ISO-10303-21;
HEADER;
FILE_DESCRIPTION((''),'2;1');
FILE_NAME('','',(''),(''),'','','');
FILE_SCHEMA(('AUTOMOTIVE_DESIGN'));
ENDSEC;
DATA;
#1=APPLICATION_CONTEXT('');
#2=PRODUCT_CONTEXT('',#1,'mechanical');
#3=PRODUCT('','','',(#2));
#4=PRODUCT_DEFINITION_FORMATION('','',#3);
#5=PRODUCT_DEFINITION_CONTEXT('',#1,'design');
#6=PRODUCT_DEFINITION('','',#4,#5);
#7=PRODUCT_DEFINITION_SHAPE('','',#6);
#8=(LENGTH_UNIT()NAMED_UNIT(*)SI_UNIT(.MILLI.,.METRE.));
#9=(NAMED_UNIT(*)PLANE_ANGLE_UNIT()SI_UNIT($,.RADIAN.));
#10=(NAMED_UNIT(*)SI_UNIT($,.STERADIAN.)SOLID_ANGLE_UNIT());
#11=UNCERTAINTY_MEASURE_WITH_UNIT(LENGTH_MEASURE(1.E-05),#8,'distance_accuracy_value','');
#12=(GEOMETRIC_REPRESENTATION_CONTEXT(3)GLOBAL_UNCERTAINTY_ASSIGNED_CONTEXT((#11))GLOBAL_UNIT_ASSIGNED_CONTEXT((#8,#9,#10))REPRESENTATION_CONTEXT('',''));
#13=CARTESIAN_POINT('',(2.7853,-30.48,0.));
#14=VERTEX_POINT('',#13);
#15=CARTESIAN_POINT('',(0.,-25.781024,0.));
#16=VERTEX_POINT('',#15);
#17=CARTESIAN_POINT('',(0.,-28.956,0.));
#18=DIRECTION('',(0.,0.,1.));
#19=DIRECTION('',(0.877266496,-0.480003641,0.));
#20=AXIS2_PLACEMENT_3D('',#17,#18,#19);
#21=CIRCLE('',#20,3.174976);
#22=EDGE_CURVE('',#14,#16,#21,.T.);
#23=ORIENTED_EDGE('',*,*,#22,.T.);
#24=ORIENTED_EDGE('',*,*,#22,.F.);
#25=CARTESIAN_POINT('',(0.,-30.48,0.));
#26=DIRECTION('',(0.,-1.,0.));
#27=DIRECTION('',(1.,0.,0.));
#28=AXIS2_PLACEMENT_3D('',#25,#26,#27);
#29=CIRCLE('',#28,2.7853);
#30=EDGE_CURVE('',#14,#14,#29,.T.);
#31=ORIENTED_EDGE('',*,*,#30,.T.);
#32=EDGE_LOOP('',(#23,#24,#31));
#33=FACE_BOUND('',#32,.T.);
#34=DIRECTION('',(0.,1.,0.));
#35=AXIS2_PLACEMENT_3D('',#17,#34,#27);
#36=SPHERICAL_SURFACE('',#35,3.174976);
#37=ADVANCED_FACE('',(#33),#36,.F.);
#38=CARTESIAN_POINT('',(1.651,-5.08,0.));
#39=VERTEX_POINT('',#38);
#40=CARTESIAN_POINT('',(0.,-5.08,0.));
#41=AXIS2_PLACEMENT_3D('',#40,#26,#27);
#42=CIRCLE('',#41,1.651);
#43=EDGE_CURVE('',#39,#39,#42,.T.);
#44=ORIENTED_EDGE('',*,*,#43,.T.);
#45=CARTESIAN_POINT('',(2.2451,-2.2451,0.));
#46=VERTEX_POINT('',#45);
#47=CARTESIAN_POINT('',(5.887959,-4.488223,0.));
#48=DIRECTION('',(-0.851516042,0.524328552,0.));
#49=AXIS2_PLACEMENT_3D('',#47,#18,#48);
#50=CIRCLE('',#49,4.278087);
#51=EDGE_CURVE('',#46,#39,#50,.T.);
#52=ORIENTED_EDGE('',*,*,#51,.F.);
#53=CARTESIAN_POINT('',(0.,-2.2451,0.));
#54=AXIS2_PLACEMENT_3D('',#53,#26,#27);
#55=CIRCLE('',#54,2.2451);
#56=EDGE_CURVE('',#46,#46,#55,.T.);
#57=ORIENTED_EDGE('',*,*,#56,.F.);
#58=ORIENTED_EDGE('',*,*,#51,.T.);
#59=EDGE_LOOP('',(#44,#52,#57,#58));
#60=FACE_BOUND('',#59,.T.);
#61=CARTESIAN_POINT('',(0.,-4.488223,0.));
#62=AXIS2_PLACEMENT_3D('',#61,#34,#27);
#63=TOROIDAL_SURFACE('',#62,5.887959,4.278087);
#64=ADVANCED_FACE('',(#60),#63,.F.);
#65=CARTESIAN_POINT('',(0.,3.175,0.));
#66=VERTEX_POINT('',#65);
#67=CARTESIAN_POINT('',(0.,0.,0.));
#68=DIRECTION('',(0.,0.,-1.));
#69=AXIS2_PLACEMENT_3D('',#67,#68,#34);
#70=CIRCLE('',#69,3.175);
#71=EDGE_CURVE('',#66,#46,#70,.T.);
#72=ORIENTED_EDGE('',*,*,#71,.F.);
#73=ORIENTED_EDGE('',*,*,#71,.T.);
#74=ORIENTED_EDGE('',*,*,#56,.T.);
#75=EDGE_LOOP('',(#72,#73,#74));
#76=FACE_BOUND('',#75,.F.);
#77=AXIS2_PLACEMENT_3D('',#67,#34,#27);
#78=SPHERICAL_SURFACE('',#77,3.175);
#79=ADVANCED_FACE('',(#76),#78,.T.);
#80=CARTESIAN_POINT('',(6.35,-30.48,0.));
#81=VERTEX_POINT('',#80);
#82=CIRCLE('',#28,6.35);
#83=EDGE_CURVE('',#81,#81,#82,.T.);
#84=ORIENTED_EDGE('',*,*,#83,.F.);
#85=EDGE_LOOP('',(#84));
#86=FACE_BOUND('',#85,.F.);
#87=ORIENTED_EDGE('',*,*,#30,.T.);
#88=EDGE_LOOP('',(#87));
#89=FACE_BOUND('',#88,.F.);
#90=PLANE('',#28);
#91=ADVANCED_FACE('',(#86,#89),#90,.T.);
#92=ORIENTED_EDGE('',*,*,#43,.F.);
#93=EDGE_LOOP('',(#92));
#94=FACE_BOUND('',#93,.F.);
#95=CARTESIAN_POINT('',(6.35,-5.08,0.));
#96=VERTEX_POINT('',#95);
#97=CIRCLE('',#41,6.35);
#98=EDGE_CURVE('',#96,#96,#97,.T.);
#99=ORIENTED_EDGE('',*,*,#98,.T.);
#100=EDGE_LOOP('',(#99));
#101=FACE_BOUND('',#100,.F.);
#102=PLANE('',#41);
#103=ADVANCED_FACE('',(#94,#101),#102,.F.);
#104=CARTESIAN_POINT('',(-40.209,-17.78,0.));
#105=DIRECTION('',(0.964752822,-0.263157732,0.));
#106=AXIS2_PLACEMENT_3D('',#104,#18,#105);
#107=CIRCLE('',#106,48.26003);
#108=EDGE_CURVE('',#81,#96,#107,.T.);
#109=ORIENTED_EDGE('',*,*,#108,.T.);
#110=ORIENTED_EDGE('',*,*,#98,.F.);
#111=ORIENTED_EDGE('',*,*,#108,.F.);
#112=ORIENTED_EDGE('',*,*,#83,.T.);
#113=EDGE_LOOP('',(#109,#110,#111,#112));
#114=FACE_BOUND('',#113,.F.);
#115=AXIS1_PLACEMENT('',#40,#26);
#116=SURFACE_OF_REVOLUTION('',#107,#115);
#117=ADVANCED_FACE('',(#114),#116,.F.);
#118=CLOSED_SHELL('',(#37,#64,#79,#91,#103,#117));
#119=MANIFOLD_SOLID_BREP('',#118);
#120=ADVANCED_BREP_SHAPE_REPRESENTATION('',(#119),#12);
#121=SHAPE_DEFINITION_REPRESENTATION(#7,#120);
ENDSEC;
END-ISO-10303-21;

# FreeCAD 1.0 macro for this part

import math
import FreeCAD as App
import Part
import Sketcher

V = App.Vector
Q = App.Units.Quantity

doc = App.newDocument("Part")
body = doc.addObject("PartDesign::Body", "Body")

# Sketch on XY plane
sketch1 = body.newObject("Sketcher::SketchObject", "Sketch")
sketch1.AttachmentSupport = (doc.getObject("XY_Plane"), [""])
sketch1.MapMode = "FlatFace"
sketch1.addGeometry(Part.LineSegment(V(0, 3.2, 0), V(0, -25.8, 0)), False)
sketch1.addGeometry(Part.ArcOfCircle(Part.Circle(V(0, -29, 0), V(0, 0, 1), 3.2), math.radians(-29), math.radians(90)), False)
sketch1.addGeometry(Part.LineSegment(V(2.8, -30.5, 0), V(6.3, -30.5, 0)), False)
sketch1.addGeometry(Part.ArcOfCircle(Part.Circle(V(-40.2, -17.8, 0), V(0, 0, 1), 48.3), math.radians(-15), math.radians(15)), False)
sketch1.addGeometry(Part.LineSegment(V(6.3, -5.1, 0), V(1.7, -5.1, 0)), False)
sketch1.addGeometry(Part.ArcOfCircle(Part.Circle(V(5.9, -4.5, 0), V(0, 0, 1), 4.3), math.radians(148), math.radians(188)), False)
sketch1.addGeometry(Part.ArcOfCircle(Part.Circle(V(0, 0, 0), V(0, 0, 1), 3.2), math.radians(-45), math.radians(90)), False)
sketch1.addConstraint(Sketcher.Constraint("Coincident", 0, 2, 1, 2))
sketch1.addConstraint(Sketcher.Constraint("Coincident", 1, 1, 2, 1))
sketch1.addConstraint(Sketcher.Constraint("Coincident", 2, 2, 3, 1))
sketch1.addConstraint(Sketcher.Constraint("Coincident", 3, 2, 4, 1))
sketch1.addConstraint(Sketcher.Constraint("Coincident", 4, 2, 5, 2))
sketch1.addConstraint(Sketcher.Constraint("Coincident", 5, 1, 6, 1))
sketch1.addConstraint(Sketcher.Constraint("Coincident", 6, 2, 0, 1))
sketch1.addConstraint(Sketcher.Constraint("Vertical", 0))
sketch1.addConstraint(Sketcher.Constraint("Horizontal", 2))
sketch1.addConstraint(Sketcher.Constraint("Horizontal", 4))
sketch1.addConstraint(Sketcher.Constraint("Coincident", 6, 3, -1, 1))
sketch1.addConstraint(Sketcher.Constraint("Equal", 1, 6))
sketch1.addConstraint(Sketcher.Constraint("PointOnObject", 1, 3, -2))
sketch1.addConstraint(Sketcher.Constraint("PointOnObject", 0, 2, -2))
sketch1.addConstraint(Sketcher.Constraint("Vertical", 2, 2, 3, 2))
sketch1.addConstraint(Sketcher.Constraint("Radius", 3, Q("1.9 in")))
sketch1.addConstraint(Sketcher.Constraint("Radius", 1, Q("0.125 in")))
sketch1.addConstraint(Sketcher.Constraint("DistanceY", 2, 2, 3, 2, Q("1 in")))
sketch1.addConstraint(Sketcher.Constraint("DistanceY", 3, 2, -1, 1, Q("0.2 in")))
sketch1.addConstraint(Sketcher.Constraint("DistanceX", -1, 1, 2, 2, Q("0.25 in")))
sketch1.addConstraint(Sketcher.Constraint("DistanceY", 1, 1, 1, 3, Q("0.06 in")))
sketch1.addConstraint(Sketcher.Constraint("Radius", 5, Q("0.1684 in")))
sketch1.addConstraint(Sketcher.Constraint("DistanceX", 4, 2, 4, 1, Q("0.185 in")))
sketch1.addConstraint(Sketcher.Constraint("DistanceY", 5, 3, -1, 1, Q("0.1767 in")))
revolution = body.newObject("PartDesign::Revolution", "Revolution")
revolution.Profile = sketch1
revolution.ReferenceAxis = (sketch1, ["V_Axis"])
revolution.Angle = 360

doc.recompute()
